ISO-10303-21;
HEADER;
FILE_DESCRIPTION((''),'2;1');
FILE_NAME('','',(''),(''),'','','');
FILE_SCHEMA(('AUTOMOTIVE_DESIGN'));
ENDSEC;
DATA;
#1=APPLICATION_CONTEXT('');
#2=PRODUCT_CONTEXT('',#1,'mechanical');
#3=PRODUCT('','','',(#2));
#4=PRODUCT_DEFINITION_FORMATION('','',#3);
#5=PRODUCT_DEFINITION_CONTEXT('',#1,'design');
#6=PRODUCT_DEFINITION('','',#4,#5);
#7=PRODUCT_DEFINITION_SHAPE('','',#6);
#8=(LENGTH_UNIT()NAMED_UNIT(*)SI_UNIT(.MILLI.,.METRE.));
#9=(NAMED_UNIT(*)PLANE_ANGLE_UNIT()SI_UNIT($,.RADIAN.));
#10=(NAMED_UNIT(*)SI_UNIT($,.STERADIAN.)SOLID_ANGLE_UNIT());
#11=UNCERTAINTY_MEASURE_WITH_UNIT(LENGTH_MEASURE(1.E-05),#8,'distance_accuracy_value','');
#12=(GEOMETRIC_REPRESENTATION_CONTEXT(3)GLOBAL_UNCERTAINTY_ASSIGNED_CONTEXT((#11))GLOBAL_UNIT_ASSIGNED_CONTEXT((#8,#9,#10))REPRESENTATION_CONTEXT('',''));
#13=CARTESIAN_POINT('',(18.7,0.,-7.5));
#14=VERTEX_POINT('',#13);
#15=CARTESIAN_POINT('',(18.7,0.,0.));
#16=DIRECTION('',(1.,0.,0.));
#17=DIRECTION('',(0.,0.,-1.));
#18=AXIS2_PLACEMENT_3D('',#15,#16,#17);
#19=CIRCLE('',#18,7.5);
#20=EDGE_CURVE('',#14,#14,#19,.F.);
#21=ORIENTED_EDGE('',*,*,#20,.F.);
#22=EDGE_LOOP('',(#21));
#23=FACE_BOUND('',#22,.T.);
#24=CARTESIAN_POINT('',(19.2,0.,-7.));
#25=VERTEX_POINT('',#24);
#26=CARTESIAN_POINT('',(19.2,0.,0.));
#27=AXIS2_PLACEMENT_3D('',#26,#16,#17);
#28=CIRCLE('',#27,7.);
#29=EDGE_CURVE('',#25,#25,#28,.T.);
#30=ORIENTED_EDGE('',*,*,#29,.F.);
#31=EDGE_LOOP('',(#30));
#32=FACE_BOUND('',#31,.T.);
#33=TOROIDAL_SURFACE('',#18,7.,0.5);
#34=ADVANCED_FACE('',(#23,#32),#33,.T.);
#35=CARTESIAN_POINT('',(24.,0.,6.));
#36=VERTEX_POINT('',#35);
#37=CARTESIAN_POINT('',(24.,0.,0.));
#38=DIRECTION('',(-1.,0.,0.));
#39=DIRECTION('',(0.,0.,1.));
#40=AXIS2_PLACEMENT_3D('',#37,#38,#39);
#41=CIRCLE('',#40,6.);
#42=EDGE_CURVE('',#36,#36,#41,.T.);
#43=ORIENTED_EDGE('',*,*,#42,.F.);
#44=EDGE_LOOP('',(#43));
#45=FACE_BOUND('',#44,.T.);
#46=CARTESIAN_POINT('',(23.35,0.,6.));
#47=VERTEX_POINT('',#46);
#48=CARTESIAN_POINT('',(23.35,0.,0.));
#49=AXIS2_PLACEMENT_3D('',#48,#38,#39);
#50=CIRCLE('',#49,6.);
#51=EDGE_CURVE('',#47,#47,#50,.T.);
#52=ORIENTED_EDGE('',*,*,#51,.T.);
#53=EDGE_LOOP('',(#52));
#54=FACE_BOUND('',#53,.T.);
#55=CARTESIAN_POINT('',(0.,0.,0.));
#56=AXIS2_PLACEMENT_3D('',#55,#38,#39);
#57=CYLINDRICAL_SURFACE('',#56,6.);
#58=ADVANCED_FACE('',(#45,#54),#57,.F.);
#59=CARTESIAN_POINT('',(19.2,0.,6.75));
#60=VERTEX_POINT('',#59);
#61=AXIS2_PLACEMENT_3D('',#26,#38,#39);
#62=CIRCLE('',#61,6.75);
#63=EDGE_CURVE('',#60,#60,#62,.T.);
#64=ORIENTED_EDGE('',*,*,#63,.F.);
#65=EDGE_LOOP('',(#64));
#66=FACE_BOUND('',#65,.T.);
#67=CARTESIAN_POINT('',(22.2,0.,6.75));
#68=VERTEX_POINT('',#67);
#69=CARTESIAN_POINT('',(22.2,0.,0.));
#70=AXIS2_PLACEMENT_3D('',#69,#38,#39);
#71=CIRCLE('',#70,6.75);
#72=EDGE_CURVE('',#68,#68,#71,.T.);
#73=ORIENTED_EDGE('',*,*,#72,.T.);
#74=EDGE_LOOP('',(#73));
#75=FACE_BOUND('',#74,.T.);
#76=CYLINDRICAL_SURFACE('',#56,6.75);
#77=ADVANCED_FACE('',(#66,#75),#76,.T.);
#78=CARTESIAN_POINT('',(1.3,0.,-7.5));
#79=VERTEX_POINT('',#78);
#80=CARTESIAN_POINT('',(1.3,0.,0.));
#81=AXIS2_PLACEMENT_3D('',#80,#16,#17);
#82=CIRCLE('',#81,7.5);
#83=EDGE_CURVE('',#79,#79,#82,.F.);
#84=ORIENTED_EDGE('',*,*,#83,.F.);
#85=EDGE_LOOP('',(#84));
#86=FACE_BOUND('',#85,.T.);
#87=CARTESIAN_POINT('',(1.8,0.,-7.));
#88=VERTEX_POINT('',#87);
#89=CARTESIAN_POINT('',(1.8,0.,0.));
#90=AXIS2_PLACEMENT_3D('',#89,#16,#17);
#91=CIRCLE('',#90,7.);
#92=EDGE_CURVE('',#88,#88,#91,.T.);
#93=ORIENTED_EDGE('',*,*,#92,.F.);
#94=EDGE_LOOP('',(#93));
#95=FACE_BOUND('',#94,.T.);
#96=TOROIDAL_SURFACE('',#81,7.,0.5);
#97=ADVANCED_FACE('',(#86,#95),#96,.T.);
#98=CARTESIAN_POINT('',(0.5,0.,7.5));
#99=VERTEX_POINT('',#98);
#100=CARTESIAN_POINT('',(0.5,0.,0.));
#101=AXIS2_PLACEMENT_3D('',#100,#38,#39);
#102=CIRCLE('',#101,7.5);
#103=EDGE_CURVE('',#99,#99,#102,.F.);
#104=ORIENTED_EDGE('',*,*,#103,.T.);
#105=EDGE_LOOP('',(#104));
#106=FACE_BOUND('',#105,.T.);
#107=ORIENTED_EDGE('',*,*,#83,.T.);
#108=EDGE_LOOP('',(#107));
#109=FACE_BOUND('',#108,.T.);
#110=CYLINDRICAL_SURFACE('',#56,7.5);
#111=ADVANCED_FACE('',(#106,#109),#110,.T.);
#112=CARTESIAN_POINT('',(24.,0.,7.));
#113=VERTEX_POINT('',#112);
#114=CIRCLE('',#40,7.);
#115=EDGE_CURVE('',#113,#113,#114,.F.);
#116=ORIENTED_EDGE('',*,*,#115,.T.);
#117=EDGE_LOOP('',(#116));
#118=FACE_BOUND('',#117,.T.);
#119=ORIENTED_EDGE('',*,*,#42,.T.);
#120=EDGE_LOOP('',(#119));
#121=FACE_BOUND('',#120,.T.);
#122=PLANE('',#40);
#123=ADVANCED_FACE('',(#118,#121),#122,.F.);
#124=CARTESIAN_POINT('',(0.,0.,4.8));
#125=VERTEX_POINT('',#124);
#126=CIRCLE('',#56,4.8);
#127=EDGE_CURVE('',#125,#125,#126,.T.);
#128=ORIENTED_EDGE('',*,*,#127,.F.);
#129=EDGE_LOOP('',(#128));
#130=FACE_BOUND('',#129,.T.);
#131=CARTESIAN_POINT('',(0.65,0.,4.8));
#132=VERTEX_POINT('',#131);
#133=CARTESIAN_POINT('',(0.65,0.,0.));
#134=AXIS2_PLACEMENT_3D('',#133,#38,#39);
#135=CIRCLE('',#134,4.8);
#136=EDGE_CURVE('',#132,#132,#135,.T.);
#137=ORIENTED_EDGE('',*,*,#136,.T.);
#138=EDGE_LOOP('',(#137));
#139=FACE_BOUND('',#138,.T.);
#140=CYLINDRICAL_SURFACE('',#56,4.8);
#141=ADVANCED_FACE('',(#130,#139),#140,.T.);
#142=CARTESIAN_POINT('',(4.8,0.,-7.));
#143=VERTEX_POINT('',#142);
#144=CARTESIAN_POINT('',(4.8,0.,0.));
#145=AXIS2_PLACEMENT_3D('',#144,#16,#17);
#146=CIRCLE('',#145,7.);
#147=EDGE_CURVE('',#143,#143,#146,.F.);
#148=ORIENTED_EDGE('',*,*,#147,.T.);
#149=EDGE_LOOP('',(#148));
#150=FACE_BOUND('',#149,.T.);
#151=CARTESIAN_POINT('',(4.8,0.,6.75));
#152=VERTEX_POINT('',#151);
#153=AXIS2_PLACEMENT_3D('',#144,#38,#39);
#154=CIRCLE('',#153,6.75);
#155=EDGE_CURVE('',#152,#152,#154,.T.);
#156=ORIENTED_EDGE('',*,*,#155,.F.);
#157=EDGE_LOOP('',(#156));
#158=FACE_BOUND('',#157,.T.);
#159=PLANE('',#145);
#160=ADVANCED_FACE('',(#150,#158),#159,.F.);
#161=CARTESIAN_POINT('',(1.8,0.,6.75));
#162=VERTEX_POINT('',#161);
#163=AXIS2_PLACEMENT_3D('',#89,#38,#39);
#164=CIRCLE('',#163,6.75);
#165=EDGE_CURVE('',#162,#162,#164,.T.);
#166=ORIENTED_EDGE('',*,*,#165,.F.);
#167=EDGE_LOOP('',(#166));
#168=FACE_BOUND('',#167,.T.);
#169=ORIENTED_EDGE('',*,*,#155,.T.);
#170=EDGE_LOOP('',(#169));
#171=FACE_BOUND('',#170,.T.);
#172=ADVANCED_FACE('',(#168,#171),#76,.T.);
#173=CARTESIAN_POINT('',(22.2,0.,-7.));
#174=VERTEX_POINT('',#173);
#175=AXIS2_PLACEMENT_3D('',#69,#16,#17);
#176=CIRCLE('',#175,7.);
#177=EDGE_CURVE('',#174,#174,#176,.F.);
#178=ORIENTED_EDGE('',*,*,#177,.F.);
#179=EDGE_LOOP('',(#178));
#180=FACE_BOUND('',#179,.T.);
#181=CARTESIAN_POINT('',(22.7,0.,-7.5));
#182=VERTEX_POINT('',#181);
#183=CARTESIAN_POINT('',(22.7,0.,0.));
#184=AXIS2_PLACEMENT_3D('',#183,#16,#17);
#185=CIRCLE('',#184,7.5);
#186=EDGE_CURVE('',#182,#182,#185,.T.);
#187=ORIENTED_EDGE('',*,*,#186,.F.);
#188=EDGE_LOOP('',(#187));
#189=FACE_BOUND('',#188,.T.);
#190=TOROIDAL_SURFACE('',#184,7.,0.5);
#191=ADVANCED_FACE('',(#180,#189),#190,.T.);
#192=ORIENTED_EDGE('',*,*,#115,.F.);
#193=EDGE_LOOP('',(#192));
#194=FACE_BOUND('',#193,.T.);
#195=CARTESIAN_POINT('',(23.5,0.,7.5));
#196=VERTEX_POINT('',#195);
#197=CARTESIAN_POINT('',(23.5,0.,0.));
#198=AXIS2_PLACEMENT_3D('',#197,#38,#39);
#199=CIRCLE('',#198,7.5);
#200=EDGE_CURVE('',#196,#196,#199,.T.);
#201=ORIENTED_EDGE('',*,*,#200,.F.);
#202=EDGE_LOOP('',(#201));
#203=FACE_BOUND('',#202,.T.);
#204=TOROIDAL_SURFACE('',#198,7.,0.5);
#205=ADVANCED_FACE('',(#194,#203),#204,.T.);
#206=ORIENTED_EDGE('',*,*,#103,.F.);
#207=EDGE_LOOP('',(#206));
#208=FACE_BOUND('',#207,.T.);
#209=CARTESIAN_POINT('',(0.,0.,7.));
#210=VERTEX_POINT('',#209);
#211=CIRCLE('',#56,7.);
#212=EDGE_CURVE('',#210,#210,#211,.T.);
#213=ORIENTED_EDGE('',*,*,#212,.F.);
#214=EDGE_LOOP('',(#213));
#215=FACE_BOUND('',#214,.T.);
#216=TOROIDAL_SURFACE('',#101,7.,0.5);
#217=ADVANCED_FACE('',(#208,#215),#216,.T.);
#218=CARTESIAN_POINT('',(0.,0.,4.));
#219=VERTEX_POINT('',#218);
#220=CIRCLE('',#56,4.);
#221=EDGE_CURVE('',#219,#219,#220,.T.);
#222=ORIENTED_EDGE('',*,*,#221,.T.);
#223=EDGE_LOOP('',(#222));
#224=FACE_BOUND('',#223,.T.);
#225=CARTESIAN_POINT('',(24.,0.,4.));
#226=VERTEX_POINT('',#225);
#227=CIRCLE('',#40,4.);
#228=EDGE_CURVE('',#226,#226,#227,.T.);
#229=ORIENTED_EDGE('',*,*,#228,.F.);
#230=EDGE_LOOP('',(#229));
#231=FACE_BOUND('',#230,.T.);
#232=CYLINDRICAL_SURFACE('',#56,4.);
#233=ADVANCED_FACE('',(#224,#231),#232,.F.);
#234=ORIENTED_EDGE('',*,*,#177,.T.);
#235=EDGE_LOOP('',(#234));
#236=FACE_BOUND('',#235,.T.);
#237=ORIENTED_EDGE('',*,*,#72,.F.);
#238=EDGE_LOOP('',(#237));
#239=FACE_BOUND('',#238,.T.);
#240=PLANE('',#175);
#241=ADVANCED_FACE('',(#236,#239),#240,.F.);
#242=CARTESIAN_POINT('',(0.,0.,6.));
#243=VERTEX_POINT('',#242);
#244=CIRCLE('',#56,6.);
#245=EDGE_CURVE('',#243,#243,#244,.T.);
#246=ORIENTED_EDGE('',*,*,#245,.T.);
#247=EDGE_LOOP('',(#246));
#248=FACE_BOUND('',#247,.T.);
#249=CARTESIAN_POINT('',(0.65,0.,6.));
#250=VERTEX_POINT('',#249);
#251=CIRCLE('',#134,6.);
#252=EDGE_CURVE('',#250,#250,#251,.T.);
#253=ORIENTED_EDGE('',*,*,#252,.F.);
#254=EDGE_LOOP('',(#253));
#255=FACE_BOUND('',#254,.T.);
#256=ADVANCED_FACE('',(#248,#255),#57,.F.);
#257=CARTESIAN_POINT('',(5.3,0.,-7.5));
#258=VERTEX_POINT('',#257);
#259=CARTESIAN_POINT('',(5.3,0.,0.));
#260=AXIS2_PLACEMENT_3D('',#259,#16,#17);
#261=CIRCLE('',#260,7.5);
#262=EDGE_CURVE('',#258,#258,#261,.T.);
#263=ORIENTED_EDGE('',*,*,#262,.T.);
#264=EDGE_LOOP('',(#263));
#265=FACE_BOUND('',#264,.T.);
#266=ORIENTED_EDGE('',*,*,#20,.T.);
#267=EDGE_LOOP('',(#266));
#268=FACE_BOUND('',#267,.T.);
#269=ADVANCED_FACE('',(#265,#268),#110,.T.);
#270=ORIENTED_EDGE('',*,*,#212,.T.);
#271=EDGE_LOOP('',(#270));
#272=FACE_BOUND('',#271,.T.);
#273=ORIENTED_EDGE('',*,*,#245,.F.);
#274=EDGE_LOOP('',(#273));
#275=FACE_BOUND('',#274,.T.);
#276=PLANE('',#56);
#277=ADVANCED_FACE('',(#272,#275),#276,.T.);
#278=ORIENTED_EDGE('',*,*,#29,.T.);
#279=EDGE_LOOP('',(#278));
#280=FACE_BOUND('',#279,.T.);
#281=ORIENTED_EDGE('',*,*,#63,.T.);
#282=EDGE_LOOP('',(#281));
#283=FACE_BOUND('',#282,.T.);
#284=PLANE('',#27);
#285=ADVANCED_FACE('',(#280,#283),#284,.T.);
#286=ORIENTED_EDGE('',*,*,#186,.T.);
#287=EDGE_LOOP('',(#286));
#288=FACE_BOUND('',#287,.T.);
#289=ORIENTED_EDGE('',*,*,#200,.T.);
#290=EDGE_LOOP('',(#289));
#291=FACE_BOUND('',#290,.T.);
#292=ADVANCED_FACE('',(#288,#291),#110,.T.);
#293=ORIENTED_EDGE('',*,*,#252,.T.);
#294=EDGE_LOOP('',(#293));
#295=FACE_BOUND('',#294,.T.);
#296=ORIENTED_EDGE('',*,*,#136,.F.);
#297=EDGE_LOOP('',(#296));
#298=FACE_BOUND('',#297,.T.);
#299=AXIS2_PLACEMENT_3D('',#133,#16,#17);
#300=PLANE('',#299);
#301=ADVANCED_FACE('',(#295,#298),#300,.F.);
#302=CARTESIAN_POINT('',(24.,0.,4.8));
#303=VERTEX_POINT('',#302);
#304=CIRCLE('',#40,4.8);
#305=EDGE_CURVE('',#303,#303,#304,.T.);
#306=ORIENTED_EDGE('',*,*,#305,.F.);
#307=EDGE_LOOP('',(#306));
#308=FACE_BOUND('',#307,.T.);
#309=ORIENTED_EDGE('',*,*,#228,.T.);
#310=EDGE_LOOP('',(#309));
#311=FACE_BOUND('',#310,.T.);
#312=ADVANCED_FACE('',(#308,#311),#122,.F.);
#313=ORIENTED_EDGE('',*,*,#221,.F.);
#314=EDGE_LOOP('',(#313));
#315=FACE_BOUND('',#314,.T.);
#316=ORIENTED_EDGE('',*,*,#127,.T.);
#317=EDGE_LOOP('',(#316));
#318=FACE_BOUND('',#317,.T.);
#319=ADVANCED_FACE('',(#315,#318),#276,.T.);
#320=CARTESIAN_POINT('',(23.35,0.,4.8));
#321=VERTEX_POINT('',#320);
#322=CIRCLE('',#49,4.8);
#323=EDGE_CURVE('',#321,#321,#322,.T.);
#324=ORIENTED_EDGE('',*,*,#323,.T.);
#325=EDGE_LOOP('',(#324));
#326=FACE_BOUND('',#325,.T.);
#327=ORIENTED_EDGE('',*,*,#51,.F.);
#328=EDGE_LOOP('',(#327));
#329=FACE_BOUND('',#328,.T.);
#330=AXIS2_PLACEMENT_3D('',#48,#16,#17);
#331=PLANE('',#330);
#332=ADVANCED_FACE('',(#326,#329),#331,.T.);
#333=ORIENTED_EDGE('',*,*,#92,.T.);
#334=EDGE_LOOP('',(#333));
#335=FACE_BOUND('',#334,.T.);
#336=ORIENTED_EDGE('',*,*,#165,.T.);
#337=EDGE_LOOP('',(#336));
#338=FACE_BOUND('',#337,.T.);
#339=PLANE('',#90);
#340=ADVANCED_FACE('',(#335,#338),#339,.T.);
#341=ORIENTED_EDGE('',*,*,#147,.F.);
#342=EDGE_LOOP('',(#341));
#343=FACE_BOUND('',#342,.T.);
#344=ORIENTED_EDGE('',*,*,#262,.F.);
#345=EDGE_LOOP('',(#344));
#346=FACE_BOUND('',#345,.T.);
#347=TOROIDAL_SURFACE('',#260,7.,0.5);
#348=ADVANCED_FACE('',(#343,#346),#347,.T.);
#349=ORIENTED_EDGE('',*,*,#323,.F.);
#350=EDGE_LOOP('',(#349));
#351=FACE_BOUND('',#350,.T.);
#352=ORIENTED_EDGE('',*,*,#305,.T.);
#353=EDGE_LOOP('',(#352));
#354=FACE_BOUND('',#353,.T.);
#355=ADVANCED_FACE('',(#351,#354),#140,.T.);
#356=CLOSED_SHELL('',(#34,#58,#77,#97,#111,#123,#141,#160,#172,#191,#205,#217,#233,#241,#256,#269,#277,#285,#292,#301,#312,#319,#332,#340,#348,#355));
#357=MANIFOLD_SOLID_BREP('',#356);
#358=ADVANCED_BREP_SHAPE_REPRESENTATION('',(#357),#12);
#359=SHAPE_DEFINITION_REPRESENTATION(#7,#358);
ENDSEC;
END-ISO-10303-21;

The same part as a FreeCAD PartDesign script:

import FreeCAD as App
import Part
import Sketcher

V = App.Vector
Q = App.Units.Quantity


def edges_at(feature, points):
    """Names of the edges that pass closest to the given points."""
    edges = feature.Shape.Edges
    near = lambda p: min(range(len(edges)), key=lambda i: edges[i].distToShape(Part.Vertex(*p))[0])
    return sorted({f"Edge{near(p) + 1}" for p in points})


def add_polygon(sketch, points):
    """Adds a closed chain of lines whose ends are joined by coincident constraints."""
    first, n = sketch.GeometryCount, len(points)
    for a, b in zip(points, points[1:] + points[:1]):
        sketch.addGeometry(Part.LineSegment(App.Vector(*a, 0), App.Vector(*b, 0)), False)
    for i in range(n):
        sketch.addConstraint(Sketcher.Constraint("Coincident", first + i, 2, first + (i + 1) % n, 1))

doc = App.newDocument("Part")
body = doc.addObject("PartDesign::Body", "Body")

sketch1 = body.newObject("Sketcher::SketchObject", "Sketch")
sketch1.AttachmentSupport = (doc.getObject("XY_Plane"), [""])
sketch1.MapMode = "FlatFace"
add_polygon(sketch1, [(0, 4.8), (0, 4), (24, 4), (24, 4.8), (23.4, 4.8), (23.4, 6), (24, 6), (24, 7.5), (22.2, 7.5), (22.2, 6.8), (19.2, 6.8), (19.2, 7.5), (4.8, 7.5), (4.8, 6.8), (1.8, 6.8), (1.8, 7.5), (0, 7.5), (0, 6), (0.7, 6), (0.7, 4.8)])
sketch1.addConstraint([
    Sketcher.Constraint("Vertical", 0),
    Sketcher.Constraint("Horizontal", 1),
    Sketcher.Constraint("Vertical", 2),
    Sketcher.Constraint("Horizontal", 3),
    Sketcher.Constraint("Vertical", 4),
    Sketcher.Constraint("Horizontal", 5),
    Sketcher.Constraint("Vertical", 6),
    Sketcher.Constraint("Horizontal", 7),
    Sketcher.Constraint("Vertical", 8),
    Sketcher.Constraint("Horizontal", 9),
    Sketcher.Constraint("Vertical", 10),
    Sketcher.Constraint("Horizontal", 11),
    Sketcher.Constraint("Vertical", 12),
    Sketcher.Constraint("Horizontal", 13),
    Sketcher.Constraint("Vertical", 14),
    Sketcher.Constraint("Horizontal", 15),
    Sketcher.Constraint("Vertical", 16),
    Sketcher.Constraint("Horizontal", 17),
    Sketcher.Constraint("Vertical", 18),
    Sketcher.Constraint("Horizontal", 19),
    Sketcher.Constraint("PointOnObject", 0, 2, -2),
    Sketcher.Constraint("PointOnObject", 15, 2, -2),
    Sketcher.Constraint("Horizontal", 7, 2, 10, 2),
    Sketcher.Constraint("Horizontal", 9, 2, 12, 2),
    Sketcher.Constraint("Horizontal", 11, 2, 14, 2),
    Sketcher.Constraint("Horizontal", 5, 2, 16, 2),
    Sketcher.Constraint("Horizontal", 3, 2, 18, 2),
    Sketcher.Constraint("Vertical", 2, 2, 5, 2),
    Sketcher.Constraint("Equal", 9, 13),
    Sketcher.Constraint("Equal", 7, 15),
    Sketcher.Constraint("Equal", 5, 17),
    Sketcher.Constraint("DistanceX", 1, 1, 1, 2, Q("24 mm")),
    Sketcher.Constraint("DistanceX", 9, 2, 9, 1, Q("3 mm")),
    Sketcher.Constraint("DistanceX", 7, 2, 7, 1, Q("1.8 mm")),
    Sketcher.Constraint("DistanceY", 0, 2, 0, 1, Q("0.8 mm")),
    Sketcher.Constraint("DistanceY", 4, 1, 4, 2, Q("1.2 mm")),
    Sketcher.Constraint("DistanceY", 6, 1, 6, 2, Q("1.5 mm")),
    Sketcher.Constraint("DistanceY", -1, 1, 0, 2, Q("4 mm")),
    Sketcher.Constraint("DistanceX", 3, 2, 3, 1, Q("0.65 mm")),
    Sketcher.Constraint("DistanceY", 8, 2, 8, 1, Q("0.75 mm")),
])
revolution = body.newObject("PartDesign::Revolution", "Revolution")
revolution.Profile = sketch1
revolution.ReferenceAxis = (sketch1, ["H_Axis"])
revolution.Angle = 360
doc.recompute()

fillet = body.newObject("PartDesign::Fillet", "Fillet")
fillet.Base = (revolution, edges_at(revolution, [(0, 0, -7.5)]))
fillet.Radius = 0.5
doc.recompute()

fillet2 = body.newObject("PartDesign::Fillet", "Fillet001")
fillet2.Base = (fillet, edges_at(fillet, [
    (1.8, 0, -7.5),
    (4.8, 0, -7.5),
    (19.2, 0, -7.5),
    (22.2, 0, -7.5),
    (24, 0, -7.5),
]))
fillet2.Radius = 0.5

doc.recompute()
